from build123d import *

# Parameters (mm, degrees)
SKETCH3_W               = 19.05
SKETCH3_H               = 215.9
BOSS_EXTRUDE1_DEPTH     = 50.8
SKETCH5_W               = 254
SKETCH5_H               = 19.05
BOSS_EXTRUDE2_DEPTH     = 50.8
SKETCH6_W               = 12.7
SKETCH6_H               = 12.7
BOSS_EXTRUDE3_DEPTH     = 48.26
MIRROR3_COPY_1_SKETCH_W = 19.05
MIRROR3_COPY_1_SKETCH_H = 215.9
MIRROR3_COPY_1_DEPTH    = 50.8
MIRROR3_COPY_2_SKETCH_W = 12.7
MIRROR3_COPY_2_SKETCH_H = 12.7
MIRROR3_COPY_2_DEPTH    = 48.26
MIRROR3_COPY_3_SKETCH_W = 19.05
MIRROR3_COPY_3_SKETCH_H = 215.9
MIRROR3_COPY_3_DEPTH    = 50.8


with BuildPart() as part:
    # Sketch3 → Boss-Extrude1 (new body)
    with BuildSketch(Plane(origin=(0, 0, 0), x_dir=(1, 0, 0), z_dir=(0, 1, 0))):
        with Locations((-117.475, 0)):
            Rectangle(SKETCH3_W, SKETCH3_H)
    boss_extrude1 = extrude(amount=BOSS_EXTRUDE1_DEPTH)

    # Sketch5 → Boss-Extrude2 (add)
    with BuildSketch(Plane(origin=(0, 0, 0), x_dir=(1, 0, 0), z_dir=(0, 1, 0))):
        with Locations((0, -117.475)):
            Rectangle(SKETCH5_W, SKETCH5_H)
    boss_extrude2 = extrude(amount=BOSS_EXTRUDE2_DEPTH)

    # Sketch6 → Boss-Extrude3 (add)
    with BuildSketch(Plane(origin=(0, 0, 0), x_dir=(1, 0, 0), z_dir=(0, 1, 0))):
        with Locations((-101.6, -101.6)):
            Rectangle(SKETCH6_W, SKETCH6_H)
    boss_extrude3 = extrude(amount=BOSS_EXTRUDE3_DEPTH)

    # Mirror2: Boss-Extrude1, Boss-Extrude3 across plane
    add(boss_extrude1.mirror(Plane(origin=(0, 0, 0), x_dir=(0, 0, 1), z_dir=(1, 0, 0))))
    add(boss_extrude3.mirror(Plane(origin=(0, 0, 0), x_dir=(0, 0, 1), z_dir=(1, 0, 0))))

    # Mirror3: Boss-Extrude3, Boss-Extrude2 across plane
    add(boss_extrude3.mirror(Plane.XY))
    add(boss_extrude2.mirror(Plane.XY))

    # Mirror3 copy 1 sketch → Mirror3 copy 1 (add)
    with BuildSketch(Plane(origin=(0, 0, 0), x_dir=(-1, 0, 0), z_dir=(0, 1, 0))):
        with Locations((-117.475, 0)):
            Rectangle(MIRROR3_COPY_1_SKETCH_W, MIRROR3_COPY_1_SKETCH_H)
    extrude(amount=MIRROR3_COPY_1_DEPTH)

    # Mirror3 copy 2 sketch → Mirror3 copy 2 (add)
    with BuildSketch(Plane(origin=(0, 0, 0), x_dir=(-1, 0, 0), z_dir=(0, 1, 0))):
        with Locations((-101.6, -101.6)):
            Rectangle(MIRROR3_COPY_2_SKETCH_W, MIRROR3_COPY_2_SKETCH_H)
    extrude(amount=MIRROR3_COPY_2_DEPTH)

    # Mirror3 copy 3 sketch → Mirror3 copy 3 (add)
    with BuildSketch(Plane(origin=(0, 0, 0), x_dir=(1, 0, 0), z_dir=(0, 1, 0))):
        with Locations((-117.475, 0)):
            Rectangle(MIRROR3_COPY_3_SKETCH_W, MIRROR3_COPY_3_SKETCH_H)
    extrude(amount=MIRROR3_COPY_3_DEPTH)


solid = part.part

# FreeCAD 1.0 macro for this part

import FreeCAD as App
import Part
import Sketcher
Q = App.Units.Quantity


def add_polygon(sketch, points):
    """Adds a closed chain of lines whose ends are joined by coincident constraints."""
    first, n = sketch.GeometryCount, len(points)
    for a, b in zip(points, points[1:] + points[:1]):
        sketch.addGeometry(Part.LineSegment(App.Vector(*a, 0), App.Vector(*b, 0)), False)
    for i in range(n):
        sketch.addConstraint(Sketcher.Constraint("Coincident", first + i, 2, first + (i + 1) % n, 1))

doc = App.newDocument("Part")
params = doc.addObject("Spreadsheet::Sheet", "Params")
for row, (alias, value) in enumerate([
    ("sketch1_height", "8.5 in"),
    ("sketch1_width", "0.75 in"),
    ("pad1_length", "2 in"),
    ("sketch2_width", "10 in"),
    ("sketch2_height", "0.75 in"),
    ("pad2_length", "2 in"),
    ("sketch3_width", "0.5 in"),
    ("pad3_length", "1.9 in"),
    ("sketch4_height", "8.5 in"),
    ("sketch4_width", "0.75 in"),
    ("pad4_length", "2 in"),
    ("sketch5_width", "0.5 in"),
    ("pad5_length", "1.9 in"),
    ("sketch6_height", "8.5 in"),
    ("sketch6_width", "0.75 in"),
    ("pad6_length", "2 in"),
], start=1):
    params.set(f"A{row}", alias)
    params.set(f"B{row}", "=" + value)
    params.setAlias(f"B{row}", alias)

body = doc.addObject("PartDesign::Body", "Body")

sketch1 = body.newObject("Sketcher::SketchObject", "Sketch")
sketch1.AttachmentSupport = (doc.getObject("XZ_Plane"), [""])
sketch1.MapMode = "FlatFace"
add_polygon(sketch1, [(-127, -108), (-127, 108), (-108, 108), (-108, -108)])
sketch1.addConstraint([
    Sketcher.Constraint("Vertical", 0),
    Sketcher.Constraint("Horizontal", 1),
    Sketcher.Constraint("Vertical", 2),
    Sketcher.Constraint("Horizontal", 3),
    Sketcher.Constraint("DistanceY", 0, 1, 0, 2, Q("8.5 in")),
    Sketcher.Constraint("DistanceX", 0, 2, -1, 1, Q("5 in")),
    Sketcher.Constraint("DistanceX", 1, 1, 1, 2, Q("0.75 in")),
    Sketcher.Constraint("DistanceY", -1, 1, 0, 2, Q("4.25 in")),
])
sketch1.setExpression("Constraints[8]", "Params.sketch1_height")
sketch1.setExpression("Constraints[10]", "Params.sketch1_width")
pad1 = body.newObject("PartDesign::Pad", "Pad")
pad1.Profile = sketch1
pad1.setExpression("Length", "Params.pad1_length")
pad1.Reversed = True

sketch2 = body.newObject("Sketcher::SketchObject", "Sketch001")
sketch2.AttachmentSupport = (doc.getObject("XZ_Plane"), [""])
sketch2.MapMode = "FlatFace"
add_polygon(sketch2, [(-127, 108), (-127, 127), (127, 127), (127, 108)])
sketch2.addConstraint([
    Sketcher.Constraint("Vertical", 0),
    Sketcher.Constraint("Horizontal", 1),
    Sketcher.Constraint("Vertical", 2),
    Sketcher.Constraint("Horizontal", 3),
    Sketcher.Constraint("DistanceX", 1, 1, 1, 2, Q("10 in")),
    Sketcher.Constraint("DistanceX", 0, 2, -1, 1, Q("5 in")),
    Sketcher.Constraint("DistanceY", -1, 1, 0, 2, Q("5 in")),
    Sketcher.Constraint("DistanceY", 0, 1, 0, 2, Q("0.75 in")),
])
sketch2.setExpression("Constraints[8]", "Params.sketch2_width")
sketch2.setExpression("Constraints[11]", "Params.sketch2_height")
pad2 = body.newObject("PartDesign::Pad", "Pad001")
pad2.Profile = sketch2
pad2.setExpression("Length", "Params.pad2_length")
pad2.Reversed = True

sketch3 = body.newObject("Sketcher::SketchObject", "Sketch002")
sketch3.AttachmentSupport = (doc.getObject("XZ_Plane"), [""])
sketch3.MapMode = "FlatFace"
add_polygon(sketch3, [(-108, 95), (-108, 108), (-95, 108), (-95, 95)])
sketch3.addConstraint([
    Sketcher.Constraint("Vertical", 0),
    Sketcher.Constraint("Horizontal", 1),
    Sketcher.Constraint("Vertical", 2),
    Sketcher.Constraint("Horizontal", 3),
    Sketcher.Constraint("Equal", 3, 0),
    Sketcher.Constraint("DistanceX", 1, 1, 1, 2, Q("0.5 in")),
    Sketcher.Constraint("DistanceX", 0, 2, -1, 1, Q("4.25 in")),
    Sketcher.Constraint("DistanceY", -1, 1, 0, 2, Q("4.25 in")),
])
sketch3.setExpression("Constraints[9]", "Params.sketch3_width")
pad3 = body.newObject("PartDesign::Pad", "Pad002")
pad3.Profile = sketch3
pad3.setExpression("Length", "Params.pad3_length")
pad3.Reversed = True
doc.recompute()

mirrored = body.newObject("PartDesign::Mirrored", "Mirrored")
mirrored.Originals = [pad1, pad3]
mirrored.MirrorPlane = (doc.getObject("YZ_Plane"), [""])
body.Tip = mirrored
doc.recompute()

mirrored2 = body.newObject("PartDesign::Mirrored", "Mirrored001")
mirrored2.Originals = [pad3, pad2]
mirrored2.MirrorPlane = (doc.getObject("XY_Plane"), [""])
body.Tip = mirrored2

sketch4 = body.newObject("Sketcher::SketchObject", "Sketch003")
sketch4.AttachmentSupport = (doc.getObject("XZ_Plane"), [""])
sketch4.MapMode = "FlatFace"
add_polygon(sketch4, [(127, 108), (127, -108), (108, -108), (108, 108)])
sketch4.addConstraint([
    Sketcher.Constraint("Vertical", 0),
    Sketcher.Constraint("Horizontal", 1),
    Sketcher.Constraint("Vertical", 2),
    Sketcher.Constraint("Horizontal", 3),
    Sketcher.Constraint("DistanceY", 0, 2, 0, 1, Q("8.5 in")),
    Sketcher.Constraint("DistanceX", -1, 1, 0, 2, Q("5 in")),
    Sketcher.Constraint("DistanceX", 1, 2, 1, 1, Q("0.75 in")),
    Sketcher.Constraint("DistanceY", 0, 2, -1, 1, Q("4.25 in")),
])
sketch4.setExpression("Constraints[8]", "Params.sketch4_height")
sketch4.setExpression("Constraints[10]", "Params.sketch4_width")
pad4 = body.newObject("PartDesign::Pad", "Pad003")
pad4.Profile = sketch4
pad4.setExpression("Length", "Params.pad4_length")
pad4.Reversed = True

sketch5 = body.newObject("Sketcher::SketchObject", "Sketch004")
sketch5.AttachmentSupport = (doc.getObject("XZ_Plane"), [""])
sketch5.MapMode = "FlatFace"
add_polygon(sketch5, [(108, -95), (108, -108), (95, -108), (95, -95)])
sketch5.addConstraint([
    Sketcher.Constraint("Vertical", 0),
    Sketcher.Constraint("Horizontal", 1),
    Sketcher.Constraint("Vertical", 2),
    Sketcher.Constraint("Horizontal", 3),
    Sketcher.Constraint("Equal", 3, 0),
    Sketcher.Constraint("DistanceX", 1, 2, 1, 1, Q("0.5 in")),
    Sketcher.Constraint("DistanceX", -1, 1, 0, 2, Q("4.25 in")),
    Sketcher.Constraint("DistanceY", 0, 2, -1, 1, Q("4.25 in")),
])
sketch5.setExpression("Constraints[9]", "Params.sketch5_width")
pad5 = body.newObject("PartDesign::Pad", "Pad004")
pad5.Profile = sketch5
pad5.setExpression("Length", "Params.pad5_length")
pad5.Reversed = True

sketch6 = body.newObject("Sketcher::SketchObject", "Sketch005")
sketch6.AttachmentSupport = (doc.getObject("XZ_Plane"), [""])
sketch6.MapMode = "FlatFace"
add_polygon(sketch6, [(-127, -108), (-127, 108), (-108, 108), (-108, -108)])
sketch6.addConstraint([
    Sketcher.Constraint("Vertical", 0),
    Sketcher.Constraint("Horizontal", 1),
    Sketcher.Constraint("Vertical", 2),
    Sketcher.Constraint("Horizontal", 3),
    Sketcher.Constraint("DistanceY", 0, 1, 0, 2, Q("8.5 in")),
    Sketcher.Constraint("DistanceX", 0, 2, -1, 1, Q("5 in")),
    Sketcher.Constraint("DistanceX", 1, 1, 1, 2, Q("0.75 in")),
    Sketcher.Constraint("DistanceY", -1, 1, 0, 2, Q("4.25 in")),
])
sketch6.setExpression("Constraints[8]", "Params.sketch6_height")
sketch6.setExpression("Constraints[10]", "Params.sketch6_width")
pad6 = body.newObject("PartDesign::Pad", "Pad005")
pad6.Profile = sketch6
pad6.setExpression("Length", "Params.pad6_length")
pad6.Reversed = True

doc.recompute()
